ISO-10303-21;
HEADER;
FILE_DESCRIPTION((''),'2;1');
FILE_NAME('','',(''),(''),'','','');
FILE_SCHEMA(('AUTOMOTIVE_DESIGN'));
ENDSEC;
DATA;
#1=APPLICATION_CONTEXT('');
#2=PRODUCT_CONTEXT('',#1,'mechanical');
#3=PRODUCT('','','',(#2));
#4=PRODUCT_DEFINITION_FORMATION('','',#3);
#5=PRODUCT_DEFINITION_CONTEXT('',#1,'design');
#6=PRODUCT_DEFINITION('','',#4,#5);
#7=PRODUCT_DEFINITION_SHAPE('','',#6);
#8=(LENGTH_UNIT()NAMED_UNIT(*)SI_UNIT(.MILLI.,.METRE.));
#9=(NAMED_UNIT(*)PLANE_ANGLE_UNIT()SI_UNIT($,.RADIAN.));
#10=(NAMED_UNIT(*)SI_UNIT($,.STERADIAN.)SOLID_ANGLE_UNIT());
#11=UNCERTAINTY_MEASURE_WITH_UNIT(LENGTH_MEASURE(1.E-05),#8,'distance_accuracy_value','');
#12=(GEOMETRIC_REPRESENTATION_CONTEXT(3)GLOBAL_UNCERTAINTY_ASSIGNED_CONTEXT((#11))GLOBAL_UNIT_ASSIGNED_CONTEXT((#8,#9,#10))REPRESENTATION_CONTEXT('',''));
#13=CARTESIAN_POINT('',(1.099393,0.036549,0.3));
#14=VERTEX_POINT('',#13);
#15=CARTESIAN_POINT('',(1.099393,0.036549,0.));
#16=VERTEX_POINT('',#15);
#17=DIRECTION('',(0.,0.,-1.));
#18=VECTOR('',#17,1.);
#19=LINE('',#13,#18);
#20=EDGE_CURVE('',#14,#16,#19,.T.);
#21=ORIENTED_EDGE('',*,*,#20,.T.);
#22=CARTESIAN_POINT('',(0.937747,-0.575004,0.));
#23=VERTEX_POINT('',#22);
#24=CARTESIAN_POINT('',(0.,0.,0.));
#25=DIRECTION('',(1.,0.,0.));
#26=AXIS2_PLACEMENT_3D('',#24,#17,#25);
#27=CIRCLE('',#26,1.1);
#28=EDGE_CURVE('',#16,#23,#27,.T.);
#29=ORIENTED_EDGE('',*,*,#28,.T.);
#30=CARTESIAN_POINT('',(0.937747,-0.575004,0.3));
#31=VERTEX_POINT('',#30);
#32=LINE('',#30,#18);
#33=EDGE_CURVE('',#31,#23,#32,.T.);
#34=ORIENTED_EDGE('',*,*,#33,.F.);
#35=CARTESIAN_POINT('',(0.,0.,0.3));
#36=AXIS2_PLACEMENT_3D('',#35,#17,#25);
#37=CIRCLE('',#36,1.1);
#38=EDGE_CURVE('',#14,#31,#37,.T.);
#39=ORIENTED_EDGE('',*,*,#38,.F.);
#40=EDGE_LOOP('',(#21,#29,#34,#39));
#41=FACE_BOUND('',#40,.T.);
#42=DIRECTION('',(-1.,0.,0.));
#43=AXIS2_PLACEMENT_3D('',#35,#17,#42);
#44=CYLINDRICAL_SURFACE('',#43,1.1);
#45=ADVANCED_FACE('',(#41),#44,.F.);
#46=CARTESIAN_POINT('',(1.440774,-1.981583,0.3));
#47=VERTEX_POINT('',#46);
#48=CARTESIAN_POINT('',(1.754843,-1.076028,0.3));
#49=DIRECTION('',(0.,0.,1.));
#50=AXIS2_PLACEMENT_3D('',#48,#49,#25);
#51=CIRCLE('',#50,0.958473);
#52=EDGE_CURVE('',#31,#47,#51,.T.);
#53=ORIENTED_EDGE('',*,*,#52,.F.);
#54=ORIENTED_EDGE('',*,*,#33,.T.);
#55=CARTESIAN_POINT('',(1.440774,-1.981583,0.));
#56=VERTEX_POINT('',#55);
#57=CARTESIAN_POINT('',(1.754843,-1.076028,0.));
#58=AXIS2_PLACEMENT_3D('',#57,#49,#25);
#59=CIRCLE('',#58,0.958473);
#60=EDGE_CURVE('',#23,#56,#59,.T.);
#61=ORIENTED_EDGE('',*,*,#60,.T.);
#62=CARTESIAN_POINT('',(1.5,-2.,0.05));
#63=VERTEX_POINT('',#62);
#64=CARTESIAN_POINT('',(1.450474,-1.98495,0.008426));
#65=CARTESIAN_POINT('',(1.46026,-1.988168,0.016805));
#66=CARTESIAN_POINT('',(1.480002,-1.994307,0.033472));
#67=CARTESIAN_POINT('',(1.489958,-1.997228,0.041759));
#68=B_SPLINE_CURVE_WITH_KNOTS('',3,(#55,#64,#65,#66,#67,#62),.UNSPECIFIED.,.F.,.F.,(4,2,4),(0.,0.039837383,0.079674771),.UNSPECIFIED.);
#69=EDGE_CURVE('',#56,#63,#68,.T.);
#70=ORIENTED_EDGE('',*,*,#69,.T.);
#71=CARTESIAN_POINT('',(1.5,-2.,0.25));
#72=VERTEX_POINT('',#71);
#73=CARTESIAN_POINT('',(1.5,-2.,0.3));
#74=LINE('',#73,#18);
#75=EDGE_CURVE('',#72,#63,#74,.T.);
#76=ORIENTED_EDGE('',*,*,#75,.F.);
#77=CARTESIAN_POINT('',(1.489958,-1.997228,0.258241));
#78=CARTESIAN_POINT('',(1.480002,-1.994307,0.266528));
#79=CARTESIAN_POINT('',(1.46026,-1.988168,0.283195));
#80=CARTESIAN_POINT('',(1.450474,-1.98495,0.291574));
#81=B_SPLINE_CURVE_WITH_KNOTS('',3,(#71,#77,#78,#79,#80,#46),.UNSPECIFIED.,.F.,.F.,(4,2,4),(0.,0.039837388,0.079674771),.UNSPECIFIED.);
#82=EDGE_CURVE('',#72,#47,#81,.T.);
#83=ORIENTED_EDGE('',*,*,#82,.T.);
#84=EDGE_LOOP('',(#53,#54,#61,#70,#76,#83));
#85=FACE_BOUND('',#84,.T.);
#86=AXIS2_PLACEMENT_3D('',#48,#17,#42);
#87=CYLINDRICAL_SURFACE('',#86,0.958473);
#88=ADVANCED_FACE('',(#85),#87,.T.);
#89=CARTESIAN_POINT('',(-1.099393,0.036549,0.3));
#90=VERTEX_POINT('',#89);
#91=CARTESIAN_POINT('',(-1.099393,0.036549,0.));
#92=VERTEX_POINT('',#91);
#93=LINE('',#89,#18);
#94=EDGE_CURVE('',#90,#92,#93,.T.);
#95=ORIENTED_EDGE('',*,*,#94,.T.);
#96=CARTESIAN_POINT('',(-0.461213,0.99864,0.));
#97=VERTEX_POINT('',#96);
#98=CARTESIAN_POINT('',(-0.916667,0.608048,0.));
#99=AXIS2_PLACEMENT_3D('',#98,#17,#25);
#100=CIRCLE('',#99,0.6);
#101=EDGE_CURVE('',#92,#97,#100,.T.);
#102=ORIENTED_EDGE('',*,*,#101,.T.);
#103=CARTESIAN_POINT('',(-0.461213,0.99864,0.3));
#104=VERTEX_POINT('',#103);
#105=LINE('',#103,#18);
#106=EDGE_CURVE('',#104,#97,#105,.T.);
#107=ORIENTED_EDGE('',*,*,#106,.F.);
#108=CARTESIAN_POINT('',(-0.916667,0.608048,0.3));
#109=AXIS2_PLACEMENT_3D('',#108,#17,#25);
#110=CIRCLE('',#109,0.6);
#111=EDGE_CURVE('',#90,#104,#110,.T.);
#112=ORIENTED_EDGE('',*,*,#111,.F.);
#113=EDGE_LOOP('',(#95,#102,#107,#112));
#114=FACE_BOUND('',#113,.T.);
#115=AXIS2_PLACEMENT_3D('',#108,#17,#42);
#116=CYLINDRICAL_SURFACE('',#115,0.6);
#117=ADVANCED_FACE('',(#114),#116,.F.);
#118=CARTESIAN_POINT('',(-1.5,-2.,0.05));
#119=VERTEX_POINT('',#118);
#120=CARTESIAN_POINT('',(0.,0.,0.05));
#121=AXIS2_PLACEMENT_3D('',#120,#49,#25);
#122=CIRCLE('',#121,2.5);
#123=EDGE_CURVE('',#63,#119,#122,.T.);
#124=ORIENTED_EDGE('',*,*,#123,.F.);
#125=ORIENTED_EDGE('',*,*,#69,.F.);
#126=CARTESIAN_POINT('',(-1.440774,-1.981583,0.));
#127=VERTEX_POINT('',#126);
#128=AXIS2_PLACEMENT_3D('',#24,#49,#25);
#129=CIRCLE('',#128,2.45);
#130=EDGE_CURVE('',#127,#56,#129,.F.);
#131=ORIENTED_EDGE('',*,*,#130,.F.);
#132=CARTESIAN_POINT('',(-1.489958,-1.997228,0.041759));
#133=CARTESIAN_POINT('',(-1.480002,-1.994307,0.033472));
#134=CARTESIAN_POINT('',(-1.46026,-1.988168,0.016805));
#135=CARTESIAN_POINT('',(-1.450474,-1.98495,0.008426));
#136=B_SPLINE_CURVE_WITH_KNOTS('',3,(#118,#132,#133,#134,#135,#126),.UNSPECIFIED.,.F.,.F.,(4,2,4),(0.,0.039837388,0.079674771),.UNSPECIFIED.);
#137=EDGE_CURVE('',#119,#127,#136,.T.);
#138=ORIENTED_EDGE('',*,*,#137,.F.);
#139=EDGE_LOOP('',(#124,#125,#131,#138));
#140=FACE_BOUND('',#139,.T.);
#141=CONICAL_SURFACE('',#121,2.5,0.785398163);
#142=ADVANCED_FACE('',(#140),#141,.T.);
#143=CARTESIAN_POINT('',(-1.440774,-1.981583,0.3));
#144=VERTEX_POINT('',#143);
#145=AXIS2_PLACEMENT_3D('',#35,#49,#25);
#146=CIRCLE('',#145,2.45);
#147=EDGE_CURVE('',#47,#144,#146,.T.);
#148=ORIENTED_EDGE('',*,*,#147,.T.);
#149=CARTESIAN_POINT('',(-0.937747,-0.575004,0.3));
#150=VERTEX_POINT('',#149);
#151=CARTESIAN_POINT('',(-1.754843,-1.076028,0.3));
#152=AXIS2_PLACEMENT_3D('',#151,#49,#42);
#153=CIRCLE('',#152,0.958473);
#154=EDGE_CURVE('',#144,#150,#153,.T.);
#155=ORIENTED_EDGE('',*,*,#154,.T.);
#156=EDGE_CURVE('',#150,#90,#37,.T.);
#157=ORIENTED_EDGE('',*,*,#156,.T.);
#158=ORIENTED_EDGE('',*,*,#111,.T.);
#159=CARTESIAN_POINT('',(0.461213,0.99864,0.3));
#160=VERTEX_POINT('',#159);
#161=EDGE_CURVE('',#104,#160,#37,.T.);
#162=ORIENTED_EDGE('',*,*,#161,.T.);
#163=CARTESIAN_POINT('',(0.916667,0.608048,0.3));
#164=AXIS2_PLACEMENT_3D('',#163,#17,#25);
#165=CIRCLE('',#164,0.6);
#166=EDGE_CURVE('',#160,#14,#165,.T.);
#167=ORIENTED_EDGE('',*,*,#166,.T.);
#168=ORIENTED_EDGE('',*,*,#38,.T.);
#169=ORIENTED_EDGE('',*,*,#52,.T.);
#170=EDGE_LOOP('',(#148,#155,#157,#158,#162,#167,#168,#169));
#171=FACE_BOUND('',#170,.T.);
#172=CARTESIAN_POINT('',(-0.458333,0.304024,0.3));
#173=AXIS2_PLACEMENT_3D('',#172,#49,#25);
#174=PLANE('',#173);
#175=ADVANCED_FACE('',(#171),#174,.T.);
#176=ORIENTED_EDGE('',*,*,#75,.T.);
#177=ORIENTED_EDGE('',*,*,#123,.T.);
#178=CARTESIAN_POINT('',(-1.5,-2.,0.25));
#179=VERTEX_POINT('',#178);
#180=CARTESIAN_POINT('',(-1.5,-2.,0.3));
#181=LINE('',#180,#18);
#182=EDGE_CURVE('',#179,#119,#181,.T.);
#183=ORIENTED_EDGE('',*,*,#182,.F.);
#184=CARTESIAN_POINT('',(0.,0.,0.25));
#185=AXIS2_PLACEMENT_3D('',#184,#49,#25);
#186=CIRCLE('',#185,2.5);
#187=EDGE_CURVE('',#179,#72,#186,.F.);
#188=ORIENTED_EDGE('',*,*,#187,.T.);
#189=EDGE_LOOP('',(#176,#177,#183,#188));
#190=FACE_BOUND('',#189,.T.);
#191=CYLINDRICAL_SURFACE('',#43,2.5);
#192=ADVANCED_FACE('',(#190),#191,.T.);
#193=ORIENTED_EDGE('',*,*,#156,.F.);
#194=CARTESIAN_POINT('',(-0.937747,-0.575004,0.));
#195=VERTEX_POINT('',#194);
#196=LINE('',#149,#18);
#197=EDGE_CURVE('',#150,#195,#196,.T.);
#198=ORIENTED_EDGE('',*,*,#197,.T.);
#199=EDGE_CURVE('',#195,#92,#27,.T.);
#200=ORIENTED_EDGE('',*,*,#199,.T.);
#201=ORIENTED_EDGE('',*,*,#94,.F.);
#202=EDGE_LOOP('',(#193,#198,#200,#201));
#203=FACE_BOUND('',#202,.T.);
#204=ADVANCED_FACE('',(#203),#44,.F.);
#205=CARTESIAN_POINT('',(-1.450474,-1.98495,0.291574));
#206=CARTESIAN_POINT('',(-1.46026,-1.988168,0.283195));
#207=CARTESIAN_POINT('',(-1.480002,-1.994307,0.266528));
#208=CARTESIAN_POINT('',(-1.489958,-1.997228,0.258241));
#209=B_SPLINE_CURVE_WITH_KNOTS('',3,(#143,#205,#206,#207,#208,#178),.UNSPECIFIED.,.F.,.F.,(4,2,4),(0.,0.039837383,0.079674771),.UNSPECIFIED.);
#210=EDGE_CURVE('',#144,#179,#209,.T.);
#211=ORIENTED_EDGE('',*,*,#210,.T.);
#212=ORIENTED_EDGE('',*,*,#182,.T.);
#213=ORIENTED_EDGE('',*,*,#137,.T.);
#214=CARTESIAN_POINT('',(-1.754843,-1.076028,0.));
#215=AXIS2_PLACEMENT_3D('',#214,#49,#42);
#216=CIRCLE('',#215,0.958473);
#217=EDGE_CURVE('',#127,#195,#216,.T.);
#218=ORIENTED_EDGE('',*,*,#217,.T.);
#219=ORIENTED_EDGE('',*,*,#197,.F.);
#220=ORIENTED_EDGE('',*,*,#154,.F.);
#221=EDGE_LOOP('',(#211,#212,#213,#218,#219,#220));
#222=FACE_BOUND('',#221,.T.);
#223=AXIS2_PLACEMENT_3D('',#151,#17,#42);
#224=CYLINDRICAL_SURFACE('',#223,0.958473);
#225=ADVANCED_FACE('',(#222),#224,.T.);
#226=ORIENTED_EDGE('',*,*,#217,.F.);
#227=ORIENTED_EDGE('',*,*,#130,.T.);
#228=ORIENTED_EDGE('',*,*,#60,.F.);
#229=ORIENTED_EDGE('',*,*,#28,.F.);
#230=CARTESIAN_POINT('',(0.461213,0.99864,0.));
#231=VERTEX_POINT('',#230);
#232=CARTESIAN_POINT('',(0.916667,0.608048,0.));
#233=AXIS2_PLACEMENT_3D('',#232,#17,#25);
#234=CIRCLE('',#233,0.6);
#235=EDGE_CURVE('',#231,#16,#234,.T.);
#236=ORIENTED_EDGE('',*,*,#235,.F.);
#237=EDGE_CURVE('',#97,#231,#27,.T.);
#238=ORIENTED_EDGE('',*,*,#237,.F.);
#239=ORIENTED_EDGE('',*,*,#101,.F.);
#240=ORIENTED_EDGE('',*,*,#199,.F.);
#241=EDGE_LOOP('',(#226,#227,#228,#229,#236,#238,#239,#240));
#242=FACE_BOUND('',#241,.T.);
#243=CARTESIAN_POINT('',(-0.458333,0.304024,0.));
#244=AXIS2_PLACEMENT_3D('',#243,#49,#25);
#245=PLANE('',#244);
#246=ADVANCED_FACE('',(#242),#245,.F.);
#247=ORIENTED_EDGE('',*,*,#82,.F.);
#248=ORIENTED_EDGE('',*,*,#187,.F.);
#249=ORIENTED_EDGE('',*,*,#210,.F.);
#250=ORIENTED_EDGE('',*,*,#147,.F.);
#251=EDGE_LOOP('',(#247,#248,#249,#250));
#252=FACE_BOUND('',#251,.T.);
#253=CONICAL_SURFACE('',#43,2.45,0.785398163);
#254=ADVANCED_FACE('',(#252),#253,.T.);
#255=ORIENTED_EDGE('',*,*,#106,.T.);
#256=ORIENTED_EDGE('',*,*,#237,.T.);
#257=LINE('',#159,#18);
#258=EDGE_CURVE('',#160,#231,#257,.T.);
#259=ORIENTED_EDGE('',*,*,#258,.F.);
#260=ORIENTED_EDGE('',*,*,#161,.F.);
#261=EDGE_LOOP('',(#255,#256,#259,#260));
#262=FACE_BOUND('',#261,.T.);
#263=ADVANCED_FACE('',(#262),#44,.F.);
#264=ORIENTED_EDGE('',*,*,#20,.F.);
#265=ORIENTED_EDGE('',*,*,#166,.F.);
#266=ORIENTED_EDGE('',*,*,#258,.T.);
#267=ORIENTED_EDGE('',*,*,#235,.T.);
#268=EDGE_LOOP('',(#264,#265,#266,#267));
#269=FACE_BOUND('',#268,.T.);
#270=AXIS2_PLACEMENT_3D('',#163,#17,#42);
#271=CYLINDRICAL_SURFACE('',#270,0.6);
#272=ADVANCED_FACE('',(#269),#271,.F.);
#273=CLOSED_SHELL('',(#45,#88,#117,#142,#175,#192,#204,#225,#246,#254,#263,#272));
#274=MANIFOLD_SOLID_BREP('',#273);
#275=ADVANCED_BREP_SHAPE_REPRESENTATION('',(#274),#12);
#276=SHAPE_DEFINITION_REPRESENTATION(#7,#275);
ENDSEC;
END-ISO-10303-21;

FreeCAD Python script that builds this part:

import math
import FreeCAD as App
import Part
import Sketcher
Q = App.Units.Quantity


def edges_at(feature, points):
    """Names of the edges that pass closest to the given points."""
    edges = feature.Shape.Edges
    near = lambda p: min(range(len(edges)), key=lambda i: edges[i].distToShape(Part.Vertex(*p))[0])
    return sorted({f"Edge{near(p) + 1}" for p in points})

doc = App.newDocument("Part")
body = doc.addObject("PartDesign::Body", "Body")

# Sketch on XY plane
sketch1 = body.newObject("Sketcher::SketchObject", "Sketch")
sketch1.AttachmentSupport = (doc.getObject("XY_Plane"), [""])
sketch1.MapMode = "FlatFace"
sketch1.addGeometry([
    Part.ArcOfCircle(Part.Circle(App.Vector(0, 0, 0), App.Vector(0, 0, 1), 1.1), math.radians(178.095931), math.radians(211.515631)),  # 0
    Part.ArcOfCircle(Part.Circle(App.Vector(-0.916667, 0.608048, 0), App.Vector(0, 0, 1), 0.6), math.radians(40.61607), math.radians(252.26931)),  # 1
    Part.ArcOfCircle(Part.Circle(App.Vector(0, 0, 0), App.Vector(0, 0, 1), 1.1), math.radians(65.21055), math.radians(114.78945)),  # 2
    Part.ArcOfCircle(Part.Circle(App.Vector(0.916667, 0.608048, 0), App.Vector(0, 0, 1), 0.6), math.radians(-72.26931), math.radians(139.38393)),  # 3
    Part.ArcOfCircle(Part.Circle(App.Vector(0, 0, 0), App.Vector(0, 0, 1), 1.1), math.radians(-31.515631), math.radians(1.904069)),  # 4
    Part.ArcOfCircle(Part.Circle(App.Vector(1.754843, -1.076028, 0), App.Vector(0, 0, 1), 0.958473), math.radians(148.484369), math.radians(254.58049)),  # 5
    Part.ArcOfCircle(Part.Circle(App.Vector(0, 0, 0), App.Vector(0, 0, 1), 2.5), math.radians(-53.130102), math.radians(233.130102)),  # 6
    Part.ArcOfCircle(Part.Circle(App.Vector(-1.754843, -1.076028, 0), App.Vector(0, 0, 1), 0.958473), math.radians(-74.58049), math.radians(31.515631)),  # 7
], False)
sketch1.addConstraint([
    Sketcher.Constraint("Coincident", 0, 1, 1, 2),
    Sketcher.Constraint("Coincident", 1, 1, 2, 2),
    Sketcher.Constraint("Coincident", 2, 1, 3, 2),
    Sketcher.Constraint("Coincident", 3, 1, 4, 2),
    Sketcher.Constraint("Tangent", 4, 1, 5, 1),
    Sketcher.Constraint("Coincident", 5, 2, 6, 1),
    Sketcher.Constraint("Coincident", 6, 2, 7, 1),
    Sketcher.Constraint("Tangent", 7, 2, 0, 2),
    Sketcher.Constraint("Coincident", 0, 3, -1, 1),
    Sketcher.Constraint("Coincident", 2, 3, -1, 1),
    Sketcher.Constraint("Coincident", 4, 3, -1, 1),
    Sketcher.Constraint("Coincident", 6, 3, -1, 1),
    Sketcher.Constraint("Equal", 0, 2),
    Sketcher.Constraint("Equal", 1, 3),
    Sketcher.Constraint("Equal", 2, 4),
    Sketcher.Constraint("Equal", 5, 7),
    Sketcher.Constraint("Symmetric", 1, 3, 3, 3, -2),
    Sketcher.Constraint("Horizontal", 5, 3, 7, 3),
    Sketcher.Constraint("Radius", 0, Q("1.1 mm")),
    Sketcher.Constraint("Radius", 1, Q("0.6 mm")),
    Sketcher.Constraint("Radius", 6, Q("2.5 mm")),
    Sketcher.Constraint("DistanceY", 5, 2, -1, 1, Q("2 mm")),
    Sketcher.Constraint("Radius", 5, Q("0.958473 mm")),
    Sketcher.Constraint("DistanceY", 0, 1, 1, 3, Q("0.571499 mm")),
    Sketcher.Constraint("DistanceY", -1, 1, 0, 1, Q("0.036549 mm")),
])
pad1 = body.newObject("PartDesign::Pad", "Pad")
pad1.Profile = sketch1
pad1.Length = 0.3
doc.recompute()

chamfer = body.newObject("PartDesign::Chamfer", "Chamfer")
chamfer.Base = (pad1, edges_at(pad1, [(0, 2.5, 0.3), (0, 2.5, 0)]))
chamfer.Size = 0.05

doc.recompute()
